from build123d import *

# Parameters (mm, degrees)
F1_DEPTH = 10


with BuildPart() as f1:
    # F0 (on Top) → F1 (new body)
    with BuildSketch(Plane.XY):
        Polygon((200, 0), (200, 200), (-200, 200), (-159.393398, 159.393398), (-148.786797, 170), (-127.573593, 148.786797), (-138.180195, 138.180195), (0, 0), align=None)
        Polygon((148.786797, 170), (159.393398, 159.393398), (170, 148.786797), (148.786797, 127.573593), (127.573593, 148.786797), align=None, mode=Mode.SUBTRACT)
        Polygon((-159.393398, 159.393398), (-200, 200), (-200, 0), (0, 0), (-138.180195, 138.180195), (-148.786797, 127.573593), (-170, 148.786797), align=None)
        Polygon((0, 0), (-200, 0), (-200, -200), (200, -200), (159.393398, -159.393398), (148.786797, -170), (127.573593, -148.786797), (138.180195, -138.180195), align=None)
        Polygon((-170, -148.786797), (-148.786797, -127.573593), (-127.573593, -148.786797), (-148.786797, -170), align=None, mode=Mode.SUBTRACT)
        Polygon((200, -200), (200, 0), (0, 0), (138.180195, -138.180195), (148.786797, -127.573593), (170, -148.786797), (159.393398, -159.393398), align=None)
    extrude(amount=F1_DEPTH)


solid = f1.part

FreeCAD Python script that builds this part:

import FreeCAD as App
import Part
import Sketcher

V = App.Vector
Q = App.Units.Quantity


def add_polygon(sketch, points):
    """Adds a closed chain of lines whose ends are joined by coincident constraints."""
    first, n = sketch.GeometryCount, len(points)
    for a, b in zip(points, points[1:] + points[:1]):
        sketch.addGeometry(Part.LineSegment(App.Vector(*a, 0), App.Vector(*b, 0)), False)
    for i in range(n):
        sketch.addConstraint(Sketcher.Constraint("Coincident", first + i, 2, first + (i + 1) % n, 1))

doc = App.newDocument("Part")
body = doc.addObject("PartDesign::Body", "Body")

# Sketch on XY plane
sketch1 = doc.addObject("Sketcher::SketchObject", "Sketch")
body.addObject(sketch1)
sketch1.AttachmentSupport = (doc.XY_Plane, [""])
sketch1.MapMode = "FlatFace"
add_polygon(sketch1, [(200, 200), (-200, 200), (-200, -200), (200, -200)])  # lines 0-3
add_polygon(sketch1, [(127.573593, -148.786797), (148.786797, -127.573593), (170, -148.786797), (159.393398, -159.393398), (148.786797, -170)])  # lines 4-8
add_polygon(sketch1, [(-148.786797, -170), (-170, -148.786797), (-148.786797, -127.573593), (-127.573593, -148.786797)])  # lines 9-12
add_polygon(sketch1, [(-127.573593, 148.786797), (-148.786797, 127.573593), (-170, 148.786797), (-159.393398, 159.393398), (-148.786797, 170)])  # lines 13-17
add_polygon(sketch1, [(127.573593, 148.786797), (148.786797, 170), (159.393398, 159.393398), (170, 148.786797), (148.786797, 127.573593)])  # lines 18-22
sketch1.addConstraint([
    Sketcher.Constraint("Horizontal", 0),
    Sketcher.Constraint("Vertical", 1),
    Sketcher.Constraint("Horizontal", 2),
    Sketcher.Constraint("Vertical", 3),
    Sketcher.Constraint("Symmetric", 0, 2, 2, 2, -1, 1),
    Sketcher.Constraint("Symmetric", 4, 2, 13, 2, -1, 1),
    Sketcher.Constraint("Symmetric", 5, 2, 14, 2, -1, 1),
    Sketcher.Constraint("Symmetric", 6, 2, 15, 2, -1, 1),
    Sketcher.Constraint("Symmetric", 7, 2, 16, 2, -1, 1),
    Sketcher.Constraint("Symmetric", 8, 2, 17, 2, -1, 1),
    Sketcher.Constraint("Symmetric", 12, 2, 18, 2, -1, 1),
    Sketcher.Constraint("Symmetric", 9, 2, 20, 2, -1, 1),
    Sketcher.Constraint("Symmetric", 10, 2, 21, 2, -1, 1),
    Sketcher.Constraint("Symmetric", 11, 2, 22, 2, -1, 1),
    Sketcher.Constraint("Symmetric", 5, 2, 9, 2, -2),
    Sketcher.Constraint("Symmetric", 4, 2, 10, 2, -2),
    Sketcher.Constraint("Symmetric", 8, 2, 11, 2, -2),
    Sketcher.Constraint("Symmetric", 7, 2, 12, 2, -2),
    Sketcher.Constraint("Symmetric", 15, 2, 19, 2, -2),
    Sketcher.Constraint("Perpendicular", 4, 5),
    Sketcher.Constraint("Perpendicular", 5, 6),
    Sketcher.Constraint("Parallel", 6, 7),
    Sketcher.Constraint("Perpendicular", 7, 8),
    Sketcher.Constraint("Parallel", 8, 9),
    Sketcher.Constraint("Horizontal", 5, 2, 8, 2),
    Sketcher.Constraint("Equal", 2, 1),
    Sketcher.Constraint("Equal", 6, 7),
    Sketcher.Constraint("DistanceX", 0, 2, 0, 1, Q("400 mm")),
    Sketcher.Constraint("Distance", 4, Q("30.000001 mm")),
    Sketcher.Constraint("DistanceX", -1, 1, 5, 2, Q("170 mm")),
    Sketcher.Constraint("DistanceY", 7, 2, -1, 1, Q("170 mm")),
])
pad1 = doc.addObject("PartDesign::Pad", "Pad")
body.addObject(pad1)
pad1.Profile = sketch1
pad1.Length = 10

doc.recompute()
